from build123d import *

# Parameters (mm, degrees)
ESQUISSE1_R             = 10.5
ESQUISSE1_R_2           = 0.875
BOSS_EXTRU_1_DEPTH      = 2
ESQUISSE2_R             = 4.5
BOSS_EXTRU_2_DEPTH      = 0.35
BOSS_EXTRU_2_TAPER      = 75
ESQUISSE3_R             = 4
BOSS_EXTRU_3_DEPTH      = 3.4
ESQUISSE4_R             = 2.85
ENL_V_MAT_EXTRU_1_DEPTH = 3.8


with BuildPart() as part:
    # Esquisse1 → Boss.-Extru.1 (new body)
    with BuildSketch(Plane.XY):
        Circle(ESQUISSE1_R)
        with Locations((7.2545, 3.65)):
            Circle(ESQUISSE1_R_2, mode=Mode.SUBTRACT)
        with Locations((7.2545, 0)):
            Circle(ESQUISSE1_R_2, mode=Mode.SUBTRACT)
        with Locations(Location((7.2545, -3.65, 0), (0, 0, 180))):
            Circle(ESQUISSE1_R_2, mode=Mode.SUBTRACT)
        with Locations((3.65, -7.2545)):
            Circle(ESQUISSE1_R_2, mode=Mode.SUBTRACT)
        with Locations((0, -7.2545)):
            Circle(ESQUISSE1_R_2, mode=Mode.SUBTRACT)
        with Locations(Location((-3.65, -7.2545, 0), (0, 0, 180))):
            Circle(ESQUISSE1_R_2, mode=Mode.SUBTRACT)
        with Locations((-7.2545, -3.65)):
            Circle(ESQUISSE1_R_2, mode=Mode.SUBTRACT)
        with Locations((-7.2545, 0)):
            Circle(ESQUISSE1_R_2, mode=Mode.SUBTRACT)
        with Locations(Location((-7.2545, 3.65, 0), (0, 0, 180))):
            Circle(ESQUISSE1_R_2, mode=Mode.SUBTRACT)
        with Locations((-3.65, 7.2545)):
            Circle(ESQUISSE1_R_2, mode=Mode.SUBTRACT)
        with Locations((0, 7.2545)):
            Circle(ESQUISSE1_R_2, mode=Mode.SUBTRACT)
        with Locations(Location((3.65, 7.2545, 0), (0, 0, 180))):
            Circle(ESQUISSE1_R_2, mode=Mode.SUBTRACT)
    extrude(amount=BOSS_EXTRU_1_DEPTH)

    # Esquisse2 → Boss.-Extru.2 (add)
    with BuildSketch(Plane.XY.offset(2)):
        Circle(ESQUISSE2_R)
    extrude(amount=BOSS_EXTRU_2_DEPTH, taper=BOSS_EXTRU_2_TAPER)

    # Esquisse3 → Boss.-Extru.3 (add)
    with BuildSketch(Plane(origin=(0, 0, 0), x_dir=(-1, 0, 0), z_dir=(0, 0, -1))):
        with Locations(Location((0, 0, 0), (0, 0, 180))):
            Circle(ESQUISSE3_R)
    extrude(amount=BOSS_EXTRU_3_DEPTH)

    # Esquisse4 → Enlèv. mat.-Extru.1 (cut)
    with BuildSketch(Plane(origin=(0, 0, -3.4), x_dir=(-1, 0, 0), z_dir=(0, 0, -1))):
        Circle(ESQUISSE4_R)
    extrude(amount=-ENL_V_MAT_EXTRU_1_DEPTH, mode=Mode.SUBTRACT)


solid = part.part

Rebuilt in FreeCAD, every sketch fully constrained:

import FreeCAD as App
import Part
import Sketcher
Q = App.Units.Quantity

doc = App.newDocument("Part")
body = doc.addObject("PartDesign::Body", "Body")

sketch1 = body.newObject("Sketcher::SketchObject", "Sketch")
sketch1.AttachmentSupport = (doc.getObject("XY_Plane"), [""])
sketch1.MapMode = "FlatFace"
sketch1.addGeometry([
    Part.Circle(App.Vector(0, 0, 0), App.Vector(0, 0, 1), 10.5),
    Part.Circle(App.Vector(-3.6, -7.3, 0), App.Vector(0, 0, 1), 0.9),
    Part.Circle(App.Vector(-7.3, -3.6, 0), App.Vector(0, 0, 1), 0.9),
    Part.Circle(App.Vector(0, -7.3, 0), App.Vector(0, 0, 1), 0.9),
    Part.Circle(App.Vector(3.6, -7.3, 0), App.Vector(0, 0, 1), 0.9),
    Part.Circle(App.Vector(7.3, -3.6, 0), App.Vector(0, 0, 1), 0.9),
    Part.Circle(App.Vector(-7.3, 0, 0), App.Vector(0, 0, 1), 0.9),
    Part.Circle(App.Vector(-7.3, 3.6, 0), App.Vector(0, 0, 1), 0.9),
    Part.Circle(App.Vector(-3.6, 7.3, 0), App.Vector(0, 0, 1), 0.9),
    Part.Circle(App.Vector(7.3, 0, 0), App.Vector(0, 0, 1), 0.9),
    Part.Circle(App.Vector(7.3, 3.6, 0), App.Vector(0, 0, 1), 0.9),
    Part.Circle(App.Vector(0, 7.3, 0), App.Vector(0, 0, 1), 0.9),
    Part.Circle(App.Vector(3.6, 7.3, 0), App.Vector(0, 0, 1), 0.9),
], False)
sketch1.addConstraint([
    Sketcher.Constraint("Coincident", 0, 3, -1, 1),
    Sketcher.Constraint("Equal", 1, 2),
    Sketcher.Constraint("Equal", 2, 3),
    Sketcher.Constraint("Equal", 3, 4),
    Sketcher.Constraint("Equal", 4, 5),
    Sketcher.Constraint("Equal", 5, 6),
    Sketcher.Constraint("Equal", 6, 7),
    Sketcher.Constraint("Equal", 7, 8),
    Sketcher.Constraint("Equal", 8, 9),
    Sketcher.Constraint("Equal", 9, 10),
    Sketcher.Constraint("Equal", 10, 11),
    Sketcher.Constraint("Equal", 11, 12),
    Sketcher.Constraint("Symmetric", 5, 3, 7, 3, -1, 1),
    Sketcher.Constraint("Symmetric", 4, 3, 8, 3, -1, 1),
    Sketcher.Constraint("Symmetric", 6, 3, 9, 3, -1, 1),
    Sketcher.Constraint("Symmetric", 2, 3, 10, 3, -1, 1),
    Sketcher.Constraint("Symmetric", 3, 3, 11, 3, -1, 1),
    Sketcher.Constraint("Symmetric", 1, 3, 12, 3, -1, 1),
    Sketcher.Constraint("Symmetric", 1, 3, 4, 3, -2),
    Sketcher.Constraint("Symmetric", 2, 3, 5, 3, -2),
    Sketcher.Constraint("PointOnObject", 3, 3, -2),
    Sketcher.Constraint("PointOnObject", 6, 3, -1),
    Sketcher.Constraint("Horizontal", 1, 3, 3, 3),
    Sketcher.Constraint("Vertical", 2, 3, 6, 3),
    Sketcher.Constraint("Diameter", 0, Q("21 mm")),
    Sketcher.Constraint("Diameter", 1, Q("1.75 mm")),
    Sketcher.Constraint("DistanceX", 1, 3, 4, 3, Q("7.3 mm")),
    Sketcher.Constraint("DistanceY", 2, 3, 7, 3, Q("7.3 mm")),
    Sketcher.Constraint("DistanceX", 2, 3, 5, 3, Q("14.509 mm")),
    Sketcher.Constraint("DistanceY", 1, 3, 8, 3, Q("14.509 mm")),
])
pad1 = body.newObject("PartDesign::Pad", "Pad")
pad1.Profile = sketch1
pad1.Length = 2

sketch2 = body.newObject("Sketcher::SketchObject", "Sketch001")
sketch2.AttachmentSupport = (doc.getObject("XY_Plane"), [""])
sketch2.MapMode = "FlatFace"
sketch2.AttachmentOffset = App.Placement(App.Vector(0, 0, 2), App.Rotation())
sketch2.addGeometry(Part.Circle(App.Vector(0, 0, 0), App.Vector(0, 0, 1), 4.5), False)
sketch2.addConstraint([
    Sketcher.Constraint("Coincident", 0, 3, -1, 1),
    Sketcher.Constraint("Diameter", 0, Q("9 mm")),
])
pad2 = body.newObject("PartDesign::Pad", "Pad001")
pad2.Profile = sketch2
pad2.Length = 0.35
pad2.TaperAngle = -75

sketch3 = body.newObject("Sketcher::SketchObject", "Sketch002")
sketch3.AttachmentSupport = (doc.getObject("XY_Plane"), [""])
sketch3.MapMode = "FlatFace"
sketch3.addGeometry(Part.Circle(App.Vector(0, 0, 0), App.Vector(0, 0, 1), 4), False)
sketch3.addConstraint([
    Sketcher.Constraint("Coincident", 0, 3, -1, 1),
    Sketcher.Constraint("Diameter", 0, Q("8 mm")),
])
pad3 = body.newObject("PartDesign::Pad", "Pad002")
pad3.Profile = sketch3
pad3.Length = 3.4
pad3.Reversed = True

sketch4 = body.newObject("Sketcher::SketchObject", "Sketch003")
sketch4.AttachmentSupport = (doc.getObject("XY_Plane"), [""])
sketch4.MapMode = "FlatFace"
sketch4.AttachmentOffset = App.Placement(App.Vector(0, 0, -3.4), App.Rotation())
sketch4.addGeometry(Part.Circle(App.Vector(0, 0, 0), App.Vector(0, 0, 1), 2.9), False)
sketch4.addConstraint([
    Sketcher.Constraint("Coincident", 0, 3, -1, 1),
    Sketcher.Constraint("Diameter", 0, Q("5.7 mm")),
])
pocket1 = body.newObject("PartDesign::Pocket", "Pocket")
pocket1.Profile = sketch4
pocket1.Length = 3.8
pocket1.Reversed = True

doc.recompute()
